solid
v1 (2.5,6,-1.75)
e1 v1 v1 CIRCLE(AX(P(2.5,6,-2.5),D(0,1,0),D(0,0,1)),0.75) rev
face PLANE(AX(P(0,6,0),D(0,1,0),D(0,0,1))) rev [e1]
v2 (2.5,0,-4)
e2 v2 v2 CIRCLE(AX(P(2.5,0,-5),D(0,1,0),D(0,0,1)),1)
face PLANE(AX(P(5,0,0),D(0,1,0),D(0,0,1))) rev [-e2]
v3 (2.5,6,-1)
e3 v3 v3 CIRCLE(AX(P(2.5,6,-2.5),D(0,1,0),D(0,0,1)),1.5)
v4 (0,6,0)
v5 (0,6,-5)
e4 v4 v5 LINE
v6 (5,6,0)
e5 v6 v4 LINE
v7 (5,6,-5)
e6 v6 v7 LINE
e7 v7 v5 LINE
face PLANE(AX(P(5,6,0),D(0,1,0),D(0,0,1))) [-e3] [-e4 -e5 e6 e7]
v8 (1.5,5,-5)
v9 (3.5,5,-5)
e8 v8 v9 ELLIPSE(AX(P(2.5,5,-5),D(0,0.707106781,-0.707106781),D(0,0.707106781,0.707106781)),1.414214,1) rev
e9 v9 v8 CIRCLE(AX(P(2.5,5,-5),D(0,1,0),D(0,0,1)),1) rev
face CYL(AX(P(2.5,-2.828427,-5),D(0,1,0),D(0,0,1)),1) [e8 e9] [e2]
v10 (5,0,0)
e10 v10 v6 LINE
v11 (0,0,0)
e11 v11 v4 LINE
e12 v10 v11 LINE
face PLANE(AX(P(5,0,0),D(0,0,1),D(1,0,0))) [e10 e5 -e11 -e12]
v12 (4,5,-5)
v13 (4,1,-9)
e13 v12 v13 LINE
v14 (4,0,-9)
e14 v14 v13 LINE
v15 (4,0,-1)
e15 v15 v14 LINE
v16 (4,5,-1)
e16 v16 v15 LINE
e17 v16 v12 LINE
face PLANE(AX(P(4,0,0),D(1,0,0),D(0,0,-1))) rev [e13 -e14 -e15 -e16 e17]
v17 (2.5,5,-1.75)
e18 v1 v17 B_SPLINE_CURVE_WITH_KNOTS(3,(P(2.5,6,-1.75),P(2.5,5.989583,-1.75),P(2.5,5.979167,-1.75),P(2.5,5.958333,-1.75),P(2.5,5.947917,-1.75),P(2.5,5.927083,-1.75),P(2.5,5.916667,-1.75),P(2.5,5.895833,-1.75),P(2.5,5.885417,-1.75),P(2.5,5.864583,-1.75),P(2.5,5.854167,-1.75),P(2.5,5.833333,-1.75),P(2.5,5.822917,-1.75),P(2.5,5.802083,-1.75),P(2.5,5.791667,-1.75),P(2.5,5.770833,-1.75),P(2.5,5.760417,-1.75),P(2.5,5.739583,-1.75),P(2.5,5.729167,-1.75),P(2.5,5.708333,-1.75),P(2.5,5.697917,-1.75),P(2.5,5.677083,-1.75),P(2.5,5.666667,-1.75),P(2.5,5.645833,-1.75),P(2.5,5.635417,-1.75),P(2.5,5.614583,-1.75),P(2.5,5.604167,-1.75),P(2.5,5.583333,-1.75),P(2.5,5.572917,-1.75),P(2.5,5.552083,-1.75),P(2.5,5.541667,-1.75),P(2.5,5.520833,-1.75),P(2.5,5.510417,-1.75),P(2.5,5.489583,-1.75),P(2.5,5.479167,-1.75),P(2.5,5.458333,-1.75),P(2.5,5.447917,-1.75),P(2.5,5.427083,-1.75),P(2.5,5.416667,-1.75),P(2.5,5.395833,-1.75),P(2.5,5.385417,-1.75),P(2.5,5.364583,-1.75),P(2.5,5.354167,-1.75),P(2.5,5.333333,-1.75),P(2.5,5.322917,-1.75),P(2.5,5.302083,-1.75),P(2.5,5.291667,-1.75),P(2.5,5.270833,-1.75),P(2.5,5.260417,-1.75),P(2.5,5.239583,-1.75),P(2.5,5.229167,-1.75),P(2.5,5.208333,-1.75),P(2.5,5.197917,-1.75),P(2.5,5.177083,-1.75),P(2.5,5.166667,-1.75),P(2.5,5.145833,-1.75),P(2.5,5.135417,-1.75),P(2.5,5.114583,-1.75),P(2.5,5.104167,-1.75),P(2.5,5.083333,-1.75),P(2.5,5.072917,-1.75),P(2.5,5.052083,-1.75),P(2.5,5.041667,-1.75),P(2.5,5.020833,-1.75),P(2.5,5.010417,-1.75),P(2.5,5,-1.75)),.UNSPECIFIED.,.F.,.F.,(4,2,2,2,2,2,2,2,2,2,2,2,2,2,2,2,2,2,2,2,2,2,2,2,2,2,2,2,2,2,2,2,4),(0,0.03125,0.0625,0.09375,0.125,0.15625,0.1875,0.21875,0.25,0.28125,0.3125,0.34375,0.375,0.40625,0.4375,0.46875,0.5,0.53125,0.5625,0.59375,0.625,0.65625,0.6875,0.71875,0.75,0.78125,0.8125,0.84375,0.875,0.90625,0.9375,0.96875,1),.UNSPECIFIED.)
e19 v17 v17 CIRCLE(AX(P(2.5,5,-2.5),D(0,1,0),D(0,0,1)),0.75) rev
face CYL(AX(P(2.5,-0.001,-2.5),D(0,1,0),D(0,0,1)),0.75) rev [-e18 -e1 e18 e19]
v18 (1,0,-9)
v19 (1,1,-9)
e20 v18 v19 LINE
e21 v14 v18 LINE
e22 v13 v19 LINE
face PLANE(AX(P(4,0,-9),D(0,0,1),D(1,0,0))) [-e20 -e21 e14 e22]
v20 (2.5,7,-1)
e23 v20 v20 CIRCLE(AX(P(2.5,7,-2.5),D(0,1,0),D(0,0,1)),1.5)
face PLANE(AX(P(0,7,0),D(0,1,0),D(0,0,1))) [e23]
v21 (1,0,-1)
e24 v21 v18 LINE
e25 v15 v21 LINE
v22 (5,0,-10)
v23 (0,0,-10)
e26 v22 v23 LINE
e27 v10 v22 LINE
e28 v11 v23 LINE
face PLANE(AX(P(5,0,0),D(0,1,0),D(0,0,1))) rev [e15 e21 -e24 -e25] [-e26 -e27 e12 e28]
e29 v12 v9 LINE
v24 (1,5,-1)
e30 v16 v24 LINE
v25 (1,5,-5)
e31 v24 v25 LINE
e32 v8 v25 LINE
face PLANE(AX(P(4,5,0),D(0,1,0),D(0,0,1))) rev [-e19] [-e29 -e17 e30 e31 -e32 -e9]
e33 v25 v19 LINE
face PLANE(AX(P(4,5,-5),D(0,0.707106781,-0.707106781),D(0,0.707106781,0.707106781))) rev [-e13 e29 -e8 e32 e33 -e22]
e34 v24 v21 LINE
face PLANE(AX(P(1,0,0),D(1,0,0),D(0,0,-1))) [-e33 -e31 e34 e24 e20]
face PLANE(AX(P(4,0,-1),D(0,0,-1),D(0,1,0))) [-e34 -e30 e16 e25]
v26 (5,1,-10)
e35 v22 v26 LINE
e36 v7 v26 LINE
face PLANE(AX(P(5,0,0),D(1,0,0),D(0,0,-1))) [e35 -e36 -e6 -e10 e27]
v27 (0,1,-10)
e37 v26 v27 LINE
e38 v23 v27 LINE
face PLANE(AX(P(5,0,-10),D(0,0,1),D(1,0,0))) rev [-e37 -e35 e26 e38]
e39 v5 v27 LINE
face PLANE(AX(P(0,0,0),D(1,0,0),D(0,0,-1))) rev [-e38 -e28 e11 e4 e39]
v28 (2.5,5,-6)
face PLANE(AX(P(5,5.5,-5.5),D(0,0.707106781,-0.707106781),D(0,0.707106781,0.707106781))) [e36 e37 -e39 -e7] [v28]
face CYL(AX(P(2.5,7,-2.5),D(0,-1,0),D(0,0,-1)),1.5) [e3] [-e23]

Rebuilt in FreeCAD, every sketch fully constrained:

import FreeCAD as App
import Part
import Sketcher
from FreeCAD import Vector
Q = App.Units.Quantity

doc = App.newDocument("Part")
body = doc.addObject("PartDesign::Body", "Body")

# Sketch on YZ plane
sketch1 = body.newObject("Sketcher::SketchObject", "Sketch")
sketch1.AttachmentSupport = (doc.getObject("YZ_Plane"), [""])
sketch1.MapMode = "FlatFace"
sketch1.addGeometry([
    Part.LineSegment(Vector(6, 0, 0), Vector(0, 0, 0)),  # 0
    Part.LineSegment(Vector(0, 0, 0), Vector(0, -10, 0)),  # 1
    Part.LineSegment(Vector(0, -10, 0), Vector(1, -10, 0)),  # 2
    Part.LineSegment(Vector(1, -10, 0), Vector(6, -5, 0)),  # 3
    Part.LineSegment(Vector(6, -5, 0), Vector(6, 0, 0)),  # 4
], False)
sketch1.addConstraint([
    Sketcher.Constraint("Coincident", 0, 2, 1, 1),
    Sketcher.Constraint("Coincident", 1, 2, 2, 1),
    Sketcher.Constraint("Coincident", 2, 2, 3, 1),
    Sketcher.Constraint("Coincident", 3, 2, 4, 1),
    Sketcher.Constraint("Coincident", 4, 2, 0, 1),
    Sketcher.Constraint("Horizontal", 0),
    Sketcher.Constraint("Vertical", 1),
    Sketcher.Constraint("Horizontal", 2),
    Sketcher.Constraint("Vertical", 4),
    Sketcher.Constraint("Coincident", 0, 2, -1, 1),
    Sketcher.Constraint("DistanceX", 0, 2, 0, 1, Q("6 mm")),
    Sketcher.Constraint("DistanceX", 2, 1, 2, 2, Q("1 mm")),
    Sketcher.Constraint("DistanceY", 1, 2, 1, 1, Q("10 mm")),
    Sketcher.Constraint("DistanceY", 4, 1, 4, 2, Q("5 mm")),
])
pad1 = body.newObject("PartDesign::Pad", "Pad")
pad1.Profile = sketch1
pad1.Length = 5

# Sketch on YZ plane
sketch2 = body.newObject("Sketcher::SketchObject", "Sketch001")
sketch2.AttachmentSupport = (doc.getObject("YZ_Plane"), [""])
sketch2.MapMode = "FlatFace"
sketch2.addGeometry([
    Part.LineSegment(Vector(1, -9, 0), Vector(5, -5, 0)),  # 0
    Part.LineSegment(Vector(5, -5, 0), Vector(5, -1, 0)),  # 1
    Part.LineSegment(Vector(5, -1, 0), Vector(0, -1, 0)),  # 2
    Part.LineSegment(Vector(0, -1, 0), Vector(0, -9, 0)),  # 3
    Part.LineSegment(Vector(0, -9, 0), Vector(1, -9, 0)),  # 4
], False)
sketch2.addConstraint([
    Sketcher.Constraint("Coincident", 0, 2, 1, 1),
    Sketcher.Constraint("Coincident", 1, 2, 2, 1),
    Sketcher.Constraint("Coincident", 2, 2, 3, 1),
    Sketcher.Constraint("Coincident", 3, 2, 4, 1),
    Sketcher.Constraint("Coincident", 4, 2, 0, 1),
    Sketcher.Constraint("Vertical", 1),
    Sketcher.Constraint("Horizontal", 2),
    Sketcher.Constraint("Vertical", 3),
    Sketcher.Constraint("Horizontal", 4),
    Sketcher.Constraint("PointOnObject", 2, 2, -2),
    Sketcher.Constraint("DistanceX", 2, 2, 2, 1, Q("5 mm")),
    Sketcher.Constraint("DistanceX", 4, 1, 4, 2, Q("1 mm")),
    Sketcher.Constraint("DistanceY", 1, 1, 1, 2, Q("4 mm")),
    Sketcher.Constraint("DistanceY", 3, 2, 3, 1, Q("8 mm")),
    Sketcher.Constraint("DistanceY", 0, 2, -1, 1, Q("5 mm")),
])
pocket1 = body.newObject("PartDesign::Pocket", "Pocket")
pocket1.Profile = sketch2
pocket1.Length = 4
pocket1.Reversed = True

# Sketch on YZ plane
sketch3 = body.newObject("Sketcher::SketchObject", "Sketch002")
sketch3.AttachmentSupport = (doc.getObject("YZ_Plane"), [""])
sketch3.MapMode = "FlatFace"
sketch3.addGeometry([
    Part.LineSegment(Vector(1, -9, 0), Vector(5, -5, 0)),  # 0
    Part.LineSegment(Vector(5, -5, 0), Vector(5, -1, 0)),  # 1
    Part.LineSegment(Vector(5, -1, 0), Vector(0, -1, 0)),  # 2
    Part.LineSegment(Vector(0, -1, 0), Vector(0, -9, 0)),  # 3
    Part.LineSegment(Vector(0, -9, 0), Vector(1, -9, 0)),  # 4
], False)
sketch3.addConstraint([
    Sketcher.Constraint("Coincident", 0, 2, 1, 1),
    Sketcher.Constraint("Coincident", 1, 2, 2, 1),
    Sketcher.Constraint("Coincident", 2, 2, 3, 1),
    Sketcher.Constraint("Coincident", 3, 2, 4, 1),
    Sketcher.Constraint("Coincident", 4, 2, 0, 1),
    Sketcher.Constraint("Vertical", 1),
    Sketcher.Constraint("Horizontal", 2),
    Sketcher.Constraint("Vertical", 3),
    Sketcher.Constraint("Horizontal", 4),
    Sketcher.Constraint("PointOnObject", 2, 2, -2),
    Sketcher.Constraint("DistanceX", 2, 2, 2, 1, Q("5 mm")),
    Sketcher.Constraint("DistanceX", 4, 1, 4, 2, Q("1 mm")),
    Sketcher.Constraint("DistanceY", 1, 1, 1, 2, Q("4 mm")),
    Sketcher.Constraint("DistanceY", 3, 2, 3, 1, Q("8 mm")),
    Sketcher.Constraint("DistanceY", 0, 2, -1, 1, Q("5 mm")),
])
pad2 = body.newObject("PartDesign::Pad", "Pad001")
pad2.Profile = sketch3
pad2.Length = 1

# Sketch on XZ plane
sketch4 = body.newObject("Sketcher::SketchObject", "Sketch003")
sketch4.AttachmentSupport = (doc.getObject("XZ_Plane"), [""])
sketch4.MapMode = "FlatFace"
sketch4.AttachmentOffset = App.Placement(Vector(0, 0, -6), App.Rotation())
sketch4.addGeometry(Part.Circle(Vector(2.5, -2.5, 0), Vector(0, 0, 1), 0.75), False)
sketch4.addConstraint([
    Sketcher.Constraint("Diameter", 0, Q("1.5 mm")),
    Sketcher.Constraint("DistanceX", -1, 1, 0, 3, Q("2.5 mm")),
    Sketcher.Constraint("DistanceY", 0, 3, -1, 1, Q("2.5 mm")),
])
pocket2 = body.newObject("PartDesign::Pocket", "Pocket001")
pocket2.Profile = sketch4
pocket2.Type = "UpToFirst"
pocket2.Reversed = True

# Sketch on XZ plane
sketch5 = body.newObject("Sketcher::SketchObject", "Sketch004")
sketch5.AttachmentSupport = (doc.getObject("XZ_Plane"), [""])
sketch5.MapMode = "FlatFace"
sketch5.AttachmentOffset = App.Placement(Vector(0, 0, -6), App.Rotation())
sketch5.addGeometry(Part.Circle(Vector(2.5, -2.5, 0), Vector(0, 0, 1), 1.5), False)
sketch5.addConstraint([
    Sketcher.Constraint("Diameter", 0, Q("3 mm")),
    Sketcher.Constraint("DistanceX", -1, 1, 0, 3, Q("2.5 mm")),
    Sketcher.Constraint("DistanceY", 0, 3, -1, 1, Q("2.5 mm")),
])
pad3 = body.newObject("PartDesign::Pad", "Pad002")
pad3.Profile = sketch5
pad3.Length = 1
pad3.Reversed = True

# Sketch on XZ plane
sketch6 = body.newObject("Sketcher::SketchObject", "Sketch005")
sketch6.AttachmentSupport = (doc.getObject("XZ_Plane"), [""])
sketch6.MapMode = "FlatFace"
sketch6.AttachmentOffset = App.Placement(Vector(0, 0, -5), App.Rotation())
sketch6.addGeometry(Part.Circle(Vector(2.5, -5, 0), Vector(0, 0, 1), 1), False)
sketch6.addConstraint([
    Sketcher.Constraint("Diameter", 0, Q("2 mm")),
    Sketcher.Constraint("DistanceY", 0, 3, -1, 1, Q("5 mm")),
    Sketcher.Constraint("DistanceX", -1, 1, 0, 3, Q("2.5 mm")),
])
pad4 = body.newObject("PartDesign::Pad", "Pad003")
pad4.Profile = sketch6
pad4.Length = 5

doc.recompute()
